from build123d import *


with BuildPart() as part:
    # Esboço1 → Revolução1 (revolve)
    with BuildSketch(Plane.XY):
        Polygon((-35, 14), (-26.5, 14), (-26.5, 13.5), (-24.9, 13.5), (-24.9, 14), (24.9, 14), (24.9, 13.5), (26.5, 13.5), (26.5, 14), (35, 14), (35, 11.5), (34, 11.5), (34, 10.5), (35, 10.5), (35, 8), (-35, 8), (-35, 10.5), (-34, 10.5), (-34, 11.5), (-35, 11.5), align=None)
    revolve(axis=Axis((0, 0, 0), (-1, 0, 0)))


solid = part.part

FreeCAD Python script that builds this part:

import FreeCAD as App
import Part
import Sketcher
Q = App.Units.Quantity

doc = App.newDocument("Part")
params = doc.addObject("Spreadsheet::Sheet", "Params")
for row, (alias, value) in enumerate([
    ("sketch1_width", "1 mm"),
    ("sketch1_width2", "70 mm"),
    ("sketch1_width3", "8.5 mm"),
    ("sketch1_width4", "1.6 mm"),
    ("sketch1_height", "2.5 mm"),
    ("revolution_angle", "360 deg"),
], start=1):
    params.set(f"A{row}", alias)
    params.set(f"B{row}", "=" + value)
    params.setAlias(f"B{row}", alias)

body = doc.addObject("PartDesign::Body", "Body")

# Sketch on XY plane
sketch1 = doc.addObject("Sketcher::SketchObject", "Sketch")
body.addObject(sketch1)
sketch1.AttachmentSupport = (doc.XY_Plane, [""])
sketch1.MapMode = "FlatFace"
sketch1.addGeometry(Part.LineSegment(App.Vector(-26.5, 14, 0), App.Vector(-35, 14, 0)), False)
sketch1.addGeometry(Part.LineSegment(App.Vector(-35, 14, 0), App.Vector(-35, 11.5, 0)), False)
sketch1.addGeometry(Part.LineSegment(App.Vector(-35, 11.5, 0), App.Vector(-34, 11.5, 0)), False)
sketch1.addGeometry(Part.LineSegment(App.Vector(-34, 11.5, 0), App.Vector(-34, 10.5, 0)), False)
sketch1.addGeometry(Part.LineSegment(App.Vector(-34, 10.5, 0), App.Vector(-35, 10.5, 0)), False)
sketch1.addGeometry(Part.LineSegment(App.Vector(-35, 10.5, 0), App.Vector(-35, 8, 0)), False)
sketch1.addGeometry(Part.LineSegment(App.Vector(-35, 8, 0), App.Vector(35, 8, 0)), False)
sketch1.addGeometry(Part.LineSegment(App.Vector(35, 8, 0), App.Vector(35, 10.5, 0)), False)
sketch1.addGeometry(Part.LineSegment(App.Vector(35, 10.5, 0), App.Vector(34, 10.5, 0)), False)
sketch1.addGeometry(Part.LineSegment(App.Vector(34, 10.5, 0), App.Vector(34, 11.5, 0)), False)
sketch1.addGeometry(Part.LineSegment(App.Vector(34, 11.5, 0), App.Vector(35, 11.5, 0)), False)
sketch1.addGeometry(Part.LineSegment(App.Vector(35, 11.5, 0), App.Vector(35, 14, 0)), False)
sketch1.addGeometry(Part.LineSegment(App.Vector(35, 14, 0), App.Vector(26.5, 14, 0)), False)
sketch1.addGeometry(Part.LineSegment(App.Vector(26.5, 14, 0), App.Vector(26.5, 13.5, 0)), False)
sketch1.addGeometry(Part.LineSegment(App.Vector(26.5, 13.5, 0), App.Vector(24.9, 13.5, 0)), False)
sketch1.addGeometry(Part.LineSegment(App.Vector(24.9, 13.5, 0), App.Vector(24.9, 14, 0)), False)
sketch1.addGeometry(Part.LineSegment(App.Vector(24.9, 14, 0), App.Vector(-24.9, 14, 0)), False)
sketch1.addGeometry(Part.LineSegment(App.Vector(-24.9, 14, 0), App.Vector(-24.9, 13.5, 0)), False)
sketch1.addGeometry(Part.LineSegment(App.Vector(-24.9, 13.5, 0), App.Vector(-26.5, 13.5, 0)), False)
sketch1.addGeometry(Part.LineSegment(App.Vector(-26.5, 13.5, 0), App.Vector(-26.5, 14, 0)), False)
sketch1.addConstraint(Sketcher.Constraint("Coincident", 0, 2, 1, 1))
sketch1.addConstraint(Sketcher.Constraint("Coincident", 1, 2, 2, 1))
sketch1.addConstraint(Sketcher.Constraint("Coincident", 2, 2, 3, 1))
sketch1.addConstraint(Sketcher.Constraint("Coincident", 3, 2, 4, 1))
sketch1.addConstraint(Sketcher.Constraint("Coincident", 4, 2, 5, 1))
sketch1.addConstraint(Sketcher.Constraint("Coincident", 5, 2, 6, 1))
sketch1.addConstraint(Sketcher.Constraint("Coincident", 6, 2, 7, 1))
sketch1.addConstraint(Sketcher.Constraint("Coincident", 7, 2, 8, 1))
sketch1.addConstraint(Sketcher.Constraint("Coincident", 8, 2, 9, 1))
sketch1.addConstraint(Sketcher.Constraint("Coincident", 9, 2, 10, 1))
sketch1.addConstraint(Sketcher.Constraint("Coincident", 10, 2, 11, 1))
sketch1.addConstraint(Sketcher.Constraint("Coincident", 11, 2, 12, 1))
sketch1.addConstraint(Sketcher.Constraint("Coincident", 12, 2, 13, 1))
sketch1.addConstraint(Sketcher.Constraint("Coincident", 13, 2, 14, 1))
sketch1.addConstraint(Sketcher.Constraint("Coincident", 14, 2, 15, 1))
sketch1.addConstraint(Sketcher.Constraint("Coincident", 15, 2, 16, 1))
sketch1.addConstraint(Sketcher.Constraint("Coincident", 16, 2, 17, 1))
sketch1.addConstraint(Sketcher.Constraint("Coincident", 17, 2, 18, 1))
sketch1.addConstraint(Sketcher.Constraint("Coincident", 18, 2, 19, 1))
sketch1.addConstraint(Sketcher.Constraint("Coincident", 19, 2, 0, 1))
sketch1.addConstraint(Sketcher.Constraint("Horizontal", 0))
sketch1.addConstraint(Sketcher.Constraint("Vertical", 1))
sketch1.addConstraint(Sketcher.Constraint("Horizontal", 2))
sketch1.addConstraint(Sketcher.Constraint("Vertical", 3))
sketch1.addConstraint(Sketcher.Constraint("Horizontal", 4))
sketch1.addConstraint(Sketcher.Constraint("Vertical", 5))
sketch1.addConstraint(Sketcher.Constraint("Horizontal", 6))
sketch1.addConstraint(Sketcher.Constraint("Vertical", 7))
sketch1.addConstraint(Sketcher.Constraint("Horizontal", 8))
sketch1.addConstraint(Sketcher.Constraint("Vertical", 9))
sketch1.addConstraint(Sketcher.Constraint("Horizontal", 10))
sketch1.addConstraint(Sketcher.Constraint("Vertical", 11))
sketch1.addConstraint(Sketcher.Constraint("Horizontal", 12))
sketch1.addConstraint(Sketcher.Constraint("Vertical", 13))
sketch1.addConstraint(Sketcher.Constraint("Horizontal", 14))
sketch1.addConstraint(Sketcher.Constraint("Vertical", 15))
sketch1.addConstraint(Sketcher.Constraint("Horizontal", 16))
sketch1.addConstraint(Sketcher.Constraint("Vertical", 17))
sketch1.addConstraint(Sketcher.Constraint("Horizontal", 18))
sketch1.addConstraint(Sketcher.Constraint("Vertical", 19))
sketch1.addConstraint(Sketcher.Constraint("Symmetric", 4, 2, 7, 2, -2))
sketch1.addConstraint(Sketcher.Constraint("Symmetric", 2, 2, 9, 2, -2))
sketch1.addConstraint(Sketcher.Constraint("Symmetric", 0, 2, 11, 2, -2))
sketch1.addConstraint(Sketcher.Constraint("Symmetric", 14, 2, 17, 2, -2))
sketch1.addConstraint(Sketcher.Constraint("Horizontal", 12, 2, 15, 2))
sketch1.addConstraint(Sketcher.Constraint("Vertical", 1, 2, 4, 2))
sketch1.addConstraint(Sketcher.Constraint("Equal", 0, 12))
sketch1.addConstraint(Sketcher.Constraint("Equal", 10, 3))
sketch1.addConstraint(Sketcher.Constraint("Equal", 1, 5))
sketch1.addConstraint(Sketcher.Constraint("DistanceX", 2, 1, 2, 2, Q("1 mm")))
sketch1.addConstraint(Sketcher.Constraint("DistanceX", 6, 1, 6, 2, Q("70 mm")))
sketch1.addConstraint(Sketcher.Constraint("DistanceX", 0, 2, 0, 1, Q("8.5 mm")))
sketch1.addConstraint(Sketcher.Constraint("DistanceX", 14, 2, 14, 1, Q("1.6 mm")))
sketch1.addConstraint(Sketcher.Constraint("DistanceY", 1, 2, 1, 1, Q("2.5 mm")))
sketch1.addConstraint(Sketcher.Constraint("DistanceY", 13, 2, 13, 1, Q("0.5 mm")))
sketch1.addConstraint(Sketcher.Constraint("DistanceY", -1, 1, 0, 2, Q("14 mm")))
sketch1.setExpression("Constraints[49]", "Params.sketch1_width")
sketch1.setExpression("Constraints[50]", "Params.sketch1_width2")
sketch1.setExpression("Constraints[51]", "Params.sketch1_width3")
sketch1.setExpression("Constraints[52]", "Params.sketch1_width4")
sketch1.setExpression("Constraints[53]", "Params.sketch1_height")
revolution = doc.addObject("PartDesign::Revolution", "Revolution")
body.addObject(revolution)
revolution.Profile = sketch1
revolution.ReferenceAxis = (sketch1, ["H_Axis"])
revolution.setExpression("Angle", "Params.revolution_angle")

doc.recompute()
